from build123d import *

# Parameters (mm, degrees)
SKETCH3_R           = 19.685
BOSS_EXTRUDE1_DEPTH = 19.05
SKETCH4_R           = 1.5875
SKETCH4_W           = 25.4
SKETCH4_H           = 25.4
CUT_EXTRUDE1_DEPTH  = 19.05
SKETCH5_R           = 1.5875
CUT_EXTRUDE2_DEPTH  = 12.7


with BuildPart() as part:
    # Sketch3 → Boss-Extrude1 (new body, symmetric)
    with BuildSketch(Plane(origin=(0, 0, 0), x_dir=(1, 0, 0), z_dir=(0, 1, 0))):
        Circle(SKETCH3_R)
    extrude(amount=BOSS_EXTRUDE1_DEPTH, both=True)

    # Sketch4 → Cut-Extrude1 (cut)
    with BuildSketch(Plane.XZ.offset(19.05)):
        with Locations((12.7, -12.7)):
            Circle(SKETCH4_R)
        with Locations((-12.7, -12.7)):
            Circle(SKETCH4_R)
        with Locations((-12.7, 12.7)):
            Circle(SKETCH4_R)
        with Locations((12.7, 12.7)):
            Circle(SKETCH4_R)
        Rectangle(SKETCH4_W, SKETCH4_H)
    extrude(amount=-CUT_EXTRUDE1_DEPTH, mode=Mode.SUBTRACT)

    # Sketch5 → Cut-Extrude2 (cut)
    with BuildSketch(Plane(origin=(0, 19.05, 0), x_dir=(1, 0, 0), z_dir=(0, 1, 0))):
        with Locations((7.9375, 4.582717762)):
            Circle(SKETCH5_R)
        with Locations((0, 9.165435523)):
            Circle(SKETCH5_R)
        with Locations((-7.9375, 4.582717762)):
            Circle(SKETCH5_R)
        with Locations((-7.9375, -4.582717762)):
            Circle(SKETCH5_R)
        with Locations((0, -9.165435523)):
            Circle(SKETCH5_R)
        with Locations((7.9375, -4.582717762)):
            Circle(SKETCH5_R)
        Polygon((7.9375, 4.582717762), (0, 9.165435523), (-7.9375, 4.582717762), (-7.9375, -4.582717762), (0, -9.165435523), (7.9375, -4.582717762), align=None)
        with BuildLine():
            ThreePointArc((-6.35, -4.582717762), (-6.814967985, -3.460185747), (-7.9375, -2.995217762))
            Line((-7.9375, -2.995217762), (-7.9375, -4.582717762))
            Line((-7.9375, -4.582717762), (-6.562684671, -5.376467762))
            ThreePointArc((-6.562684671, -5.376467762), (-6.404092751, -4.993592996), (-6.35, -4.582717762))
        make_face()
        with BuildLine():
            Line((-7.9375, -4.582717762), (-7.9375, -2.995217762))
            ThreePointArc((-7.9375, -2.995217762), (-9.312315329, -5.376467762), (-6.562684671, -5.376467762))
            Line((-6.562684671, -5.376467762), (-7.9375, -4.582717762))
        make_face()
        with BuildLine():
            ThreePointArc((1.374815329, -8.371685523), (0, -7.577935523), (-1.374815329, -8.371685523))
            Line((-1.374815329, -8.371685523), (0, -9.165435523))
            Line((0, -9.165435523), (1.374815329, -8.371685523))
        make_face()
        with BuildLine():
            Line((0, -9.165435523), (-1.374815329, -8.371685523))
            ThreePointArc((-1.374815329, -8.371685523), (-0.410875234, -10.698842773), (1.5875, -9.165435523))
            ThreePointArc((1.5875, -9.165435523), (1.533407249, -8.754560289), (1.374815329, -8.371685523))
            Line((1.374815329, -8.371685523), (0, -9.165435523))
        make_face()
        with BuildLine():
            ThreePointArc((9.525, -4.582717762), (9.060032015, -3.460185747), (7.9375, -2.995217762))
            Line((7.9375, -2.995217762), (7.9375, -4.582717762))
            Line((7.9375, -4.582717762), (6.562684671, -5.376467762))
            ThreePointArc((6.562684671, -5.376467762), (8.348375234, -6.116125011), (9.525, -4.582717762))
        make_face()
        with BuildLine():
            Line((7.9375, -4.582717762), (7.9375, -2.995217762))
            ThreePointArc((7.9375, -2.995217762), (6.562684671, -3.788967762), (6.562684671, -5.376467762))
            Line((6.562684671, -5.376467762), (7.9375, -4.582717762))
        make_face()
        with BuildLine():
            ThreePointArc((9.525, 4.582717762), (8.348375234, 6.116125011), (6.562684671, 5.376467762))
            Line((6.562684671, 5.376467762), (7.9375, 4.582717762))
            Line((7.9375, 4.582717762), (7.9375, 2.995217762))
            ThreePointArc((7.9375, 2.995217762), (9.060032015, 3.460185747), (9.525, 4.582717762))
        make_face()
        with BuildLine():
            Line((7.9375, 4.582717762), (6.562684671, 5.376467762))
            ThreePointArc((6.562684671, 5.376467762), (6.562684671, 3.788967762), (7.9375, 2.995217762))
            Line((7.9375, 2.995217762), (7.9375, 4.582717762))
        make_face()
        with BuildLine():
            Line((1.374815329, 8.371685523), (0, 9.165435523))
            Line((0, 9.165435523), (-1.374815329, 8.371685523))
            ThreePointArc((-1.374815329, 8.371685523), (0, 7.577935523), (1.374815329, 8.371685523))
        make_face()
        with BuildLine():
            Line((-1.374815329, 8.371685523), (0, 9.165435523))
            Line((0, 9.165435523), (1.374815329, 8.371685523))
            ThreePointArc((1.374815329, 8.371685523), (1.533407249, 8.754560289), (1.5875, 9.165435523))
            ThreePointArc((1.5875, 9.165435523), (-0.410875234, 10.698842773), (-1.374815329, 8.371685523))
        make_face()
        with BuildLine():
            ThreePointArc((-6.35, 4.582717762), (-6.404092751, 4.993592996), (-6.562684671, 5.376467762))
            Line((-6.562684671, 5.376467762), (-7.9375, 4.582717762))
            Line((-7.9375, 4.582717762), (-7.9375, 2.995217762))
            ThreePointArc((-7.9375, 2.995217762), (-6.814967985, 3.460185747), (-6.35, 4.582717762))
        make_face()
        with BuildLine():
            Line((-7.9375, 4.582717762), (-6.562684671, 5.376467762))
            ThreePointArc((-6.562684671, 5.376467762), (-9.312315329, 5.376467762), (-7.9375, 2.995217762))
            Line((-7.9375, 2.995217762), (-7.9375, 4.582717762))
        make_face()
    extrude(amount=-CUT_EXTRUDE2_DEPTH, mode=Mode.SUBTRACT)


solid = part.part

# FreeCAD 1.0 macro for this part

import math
import FreeCAD as App
import Part
import Sketcher
Q = App.Units.Quantity

doc = App.newDocument("Part")
body = doc.addObject("PartDesign::Body", "Body")

sketch1 = doc.addObject("Sketcher::SketchObject", "Sketch")
body.addObject(sketch1)
sketch1.AttachmentSupport = (doc.XZ_Plane, [""])
sketch1.MapMode = "FlatFace"
sketch1.addGeometry(Part.Circle(App.Vector(0, 0, 0), App.Vector(0, 0, 1), 20), False)
sketch1.addConstraint([
    Sketcher.Constraint("Coincident", 0, 3, -1, 1),
    Sketcher.Constraint("Diameter", 0, Q("1.55 in")),
])
pad1 = doc.addObject("PartDesign::Pad", "Pad")
body.addObject(pad1)
pad1.Profile = sketch1
pad1.Length = Q("1.5 in")
pad1.Midplane = True

sketch2 = doc.addObject("Sketcher::SketchObject", "Sketch001")
body.addObject(sketch2)
sketch2.AttachmentSupport = (doc.XZ_Plane, [""])
sketch2.MapMode = "FlatFace"
sketch2.AttachmentOffset = App.Placement(App.Vector(0, 0, 0.75 * 25.4), App.Rotation())
sketch2.addGeometry([
    Part.ArcOfCircle(Part.Circle(App.Vector(12.7, -12.7, 0), App.Vector(0, 0, 1), 1.6), math.radians(180), math.radians(450)),
    Part.LineSegment(App.Vector(12.7, -11.1, 0), App.Vector(12.7, 11.1, 0)),
    Part.ArcOfCircle(Part.Circle(App.Vector(12.7, 12.7, 0), App.Vector(0, 0, 1), 1.6), math.radians(-90), math.radians(180)),
    Part.LineSegment(App.Vector(11.1, 12.7, 0), App.Vector(-11.1, 12.7, 0)),
    Part.ArcOfCircle(Part.Circle(App.Vector(-12.7, 12.7, 0), App.Vector(0, 0, 1), 1.6), math.radians(0), math.radians(270)),
    Part.LineSegment(App.Vector(-12.7, 11.1, 0), App.Vector(-12.7, -11.1, 0)),
    Part.ArcOfCircle(Part.Circle(App.Vector(-12.7, -12.7, 0), App.Vector(0, 0, 1), 1.6), math.radians(90), math.radians(360)),
    Part.LineSegment(App.Vector(-11.1, -12.7, 0), App.Vector(11.1, -12.7, 0)),
], False)
sketch2.addConstraint([
    Sketcher.Constraint("Coincident", 0, 2, 1, 1),
    Sketcher.Constraint("Coincident", 1, 2, 2, 1),
    Sketcher.Constraint("Coincident", 2, 2, 3, 1),
    Sketcher.Constraint("Coincident", 3, 2, 4, 1),
    Sketcher.Constraint("Coincident", 4, 2, 5, 1),
    Sketcher.Constraint("Coincident", 5, 2, 6, 1),
    Sketcher.Constraint("Coincident", 6, 2, 7, 1),
    Sketcher.Constraint("Coincident", 7, 2, 0, 1),
    Sketcher.Constraint("Vertical", 1),
    Sketcher.Constraint("Horizontal", 3),
    Sketcher.Constraint("Vertical", 5),
    Sketcher.Constraint("Horizontal", 7),
    Sketcher.Constraint("Equal", 0, 2),
    Sketcher.Constraint("Equal", 2, 4),
    Sketcher.Constraint("Equal", 4, 6),
    Sketcher.Constraint("Symmetric", 0, 3, 4, 3, -1, 1),
    Sketcher.Constraint("Symmetric", 2, 3, 6, 3, -1, 1),
    Sketcher.Constraint("Symmetric", 2, 3, 4, 3, -2),
    Sketcher.Constraint("Horizontal", 4, 3, 2, 2),
    Sketcher.Constraint("Horizontal", 0, 3, 6, 2),
    Sketcher.Constraint("Vertical", 2, 3, 0, 2),
    Sketcher.Constraint("Vertical", 6, 3, 4, 2),
    Sketcher.Constraint("Equal", 7, 1),
    Sketcher.Constraint("Radius", 0, Q("0.0625 in")),
    Sketcher.Constraint("DistanceY", 0, 3, 2, 3, Q("1 in")),
])
pocket1 = doc.addObject("PartDesign::Pocket", "Pocket")
body.addObject(pocket1)
pocket1.Profile = sketch2
pocket1.Length = Q("0.75 in")

sketch3 = doc.addObject("Sketcher::SketchObject", "Sketch002")
body.addObject(sketch3)
sketch3.AttachmentSupport = (doc.XZ_Plane, [""])
sketch3.MapMode = "FlatFace"
sketch3.AttachmentOffset = App.Placement(App.Vector(0, 0, -0.75 * 25.4), App.Rotation())
sketch3.addGeometry([
    Part.ArcOfCircle(Part.Circle(App.Vector(7.9, -4.6, 0), App.Vector(0, 0, 1), 1.6), math.radians(-150), math.radians(90)),
    Part.LineSegment(App.Vector(6.6, -5.4, 0), App.Vector(1.4, -8.4, 0)),
    Part.ArcOfCircle(Part.Circle(App.Vector(0, -9.2, 0), App.Vector(0, 0, 1), 1.6), math.radians(150), math.radians(390)),
    Part.LineSegment(App.Vector(-1.4, -8.4, 0), App.Vector(-6.6, -5.4, 0)),
    Part.ArcOfCircle(Part.Circle(App.Vector(-7.9, -4.6, 0), App.Vector(0, 0, 1), 1.6), math.radians(90), math.radians(330)),
    Part.LineSegment(App.Vector(-7.9, -3, 0), App.Vector(-7.9, 3, 0)),
    Part.ArcOfCircle(Part.Circle(App.Vector(-7.9, 4.6, 0), App.Vector(0, 0, 1), 1.6), math.radians(30), math.radians(270)),
    Part.LineSegment(App.Vector(-6.6, 5.4, 0), App.Vector(-1.4, 8.4, 0)),
    Part.ArcOfCircle(Part.Circle(App.Vector(0, 9.2, 0), App.Vector(0, 0, 1), 1.6), math.radians(-30), math.radians(210)),
    Part.LineSegment(App.Vector(1.4, 8.4, 0), App.Vector(6.6, 5.4, 0)),
    Part.ArcOfCircle(Part.Circle(App.Vector(7.9, 4.6, 0), App.Vector(0, 0, 1), 1.6), math.radians(-90), math.radians(150)),
    Part.LineSegment(App.Vector(7.9, 3, 0), App.Vector(7.9, -3, 0)),
], False)
sketch3.addConstraint([
    Sketcher.Constraint("Coincident", 0, 1, 1, 1),
    Sketcher.Constraint("Coincident", 1, 2, 2, 2),
    Sketcher.Constraint("Coincident", 2, 1, 3, 1),
    Sketcher.Constraint("Coincident", 3, 2, 4, 2),
    Sketcher.Constraint("Coincident", 4, 1, 5, 1),
    Sketcher.Constraint("Coincident", 5, 2, 6, 2),
    Sketcher.Constraint("Coincident", 6, 1, 7, 1),
    Sketcher.Constraint("Coincident", 7, 2, 8, 2),
    Sketcher.Constraint("Coincident", 8, 1, 9, 1),
    Sketcher.Constraint("Coincident", 9, 2, 10, 2),
    Sketcher.Constraint("Coincident", 10, 1, 11, 1),
    Sketcher.Constraint("Coincident", 11, 2, 0, 2),
    Sketcher.Constraint("Vertical", 5),
    Sketcher.Constraint("Vertical", 11),
    Sketcher.Constraint("Equal", 0, 2),
    Sketcher.Constraint("Equal", 2, 4),
    Sketcher.Constraint("Equal", 4, 6),
    Sketcher.Constraint("Equal", 6, 8),
    Sketcher.Constraint("Equal", 8, 10),
    Sketcher.Constraint("Symmetric", 0, 3, 6, 3, -1, 1),
    Sketcher.Constraint("Symmetric", 2, 3, 8, 3, -1, 1),
    Sketcher.Constraint("Symmetric", 4, 3, 10, 3, -1, 1),
    Sketcher.Constraint("Symmetric", 0, 3, 4, 3, -2),
    Sketcher.Constraint("Symmetric", 1, 2, 2, 1, -2),
    Sketcher.Constraint("Parallel", 1, 7),
    Sketcher.Constraint("Parallel", 3, 9),
    Sketcher.Constraint("Horizontal", 0, 1, 3, 2),
    Sketcher.Constraint("Horizontal", 7, 2, 8, 1),
    Sketcher.Constraint("Vertical", 6, 3, 4, 1),
    Sketcher.Constraint("Vertical", 3, 2, 6, 1),
    Sketcher.Constraint("Vertical", 0, 3, 10, 1),
    Sketcher.Constraint("Angle", 1, Q("-150 deg")),
    Sketcher.Constraint("Radius", 0, Q("0.0625 in")),
    Sketcher.Constraint("DistanceX", -1, 1, 0, 3, Q("0.3125 in")),
    Sketcher.Constraint("DistanceY", 0, 1, 0, 3, Q("0.03125 in")),
    Sketcher.Constraint("DistanceY", 2, 3, 1, 2, Q("0.03125 in")),
    Sketcher.Constraint("DistanceY", 5, 1, 5, 2, Q("5.990436 mm")),
])
pocket2 = doc.addObject("PartDesign::Pocket", "Pocket001")
body.addObject(pocket2)
pocket2.Profile = sketch3
pocket2.Length = Q("0.5 in")
pocket2.Reversed = True

doc.recompute()
